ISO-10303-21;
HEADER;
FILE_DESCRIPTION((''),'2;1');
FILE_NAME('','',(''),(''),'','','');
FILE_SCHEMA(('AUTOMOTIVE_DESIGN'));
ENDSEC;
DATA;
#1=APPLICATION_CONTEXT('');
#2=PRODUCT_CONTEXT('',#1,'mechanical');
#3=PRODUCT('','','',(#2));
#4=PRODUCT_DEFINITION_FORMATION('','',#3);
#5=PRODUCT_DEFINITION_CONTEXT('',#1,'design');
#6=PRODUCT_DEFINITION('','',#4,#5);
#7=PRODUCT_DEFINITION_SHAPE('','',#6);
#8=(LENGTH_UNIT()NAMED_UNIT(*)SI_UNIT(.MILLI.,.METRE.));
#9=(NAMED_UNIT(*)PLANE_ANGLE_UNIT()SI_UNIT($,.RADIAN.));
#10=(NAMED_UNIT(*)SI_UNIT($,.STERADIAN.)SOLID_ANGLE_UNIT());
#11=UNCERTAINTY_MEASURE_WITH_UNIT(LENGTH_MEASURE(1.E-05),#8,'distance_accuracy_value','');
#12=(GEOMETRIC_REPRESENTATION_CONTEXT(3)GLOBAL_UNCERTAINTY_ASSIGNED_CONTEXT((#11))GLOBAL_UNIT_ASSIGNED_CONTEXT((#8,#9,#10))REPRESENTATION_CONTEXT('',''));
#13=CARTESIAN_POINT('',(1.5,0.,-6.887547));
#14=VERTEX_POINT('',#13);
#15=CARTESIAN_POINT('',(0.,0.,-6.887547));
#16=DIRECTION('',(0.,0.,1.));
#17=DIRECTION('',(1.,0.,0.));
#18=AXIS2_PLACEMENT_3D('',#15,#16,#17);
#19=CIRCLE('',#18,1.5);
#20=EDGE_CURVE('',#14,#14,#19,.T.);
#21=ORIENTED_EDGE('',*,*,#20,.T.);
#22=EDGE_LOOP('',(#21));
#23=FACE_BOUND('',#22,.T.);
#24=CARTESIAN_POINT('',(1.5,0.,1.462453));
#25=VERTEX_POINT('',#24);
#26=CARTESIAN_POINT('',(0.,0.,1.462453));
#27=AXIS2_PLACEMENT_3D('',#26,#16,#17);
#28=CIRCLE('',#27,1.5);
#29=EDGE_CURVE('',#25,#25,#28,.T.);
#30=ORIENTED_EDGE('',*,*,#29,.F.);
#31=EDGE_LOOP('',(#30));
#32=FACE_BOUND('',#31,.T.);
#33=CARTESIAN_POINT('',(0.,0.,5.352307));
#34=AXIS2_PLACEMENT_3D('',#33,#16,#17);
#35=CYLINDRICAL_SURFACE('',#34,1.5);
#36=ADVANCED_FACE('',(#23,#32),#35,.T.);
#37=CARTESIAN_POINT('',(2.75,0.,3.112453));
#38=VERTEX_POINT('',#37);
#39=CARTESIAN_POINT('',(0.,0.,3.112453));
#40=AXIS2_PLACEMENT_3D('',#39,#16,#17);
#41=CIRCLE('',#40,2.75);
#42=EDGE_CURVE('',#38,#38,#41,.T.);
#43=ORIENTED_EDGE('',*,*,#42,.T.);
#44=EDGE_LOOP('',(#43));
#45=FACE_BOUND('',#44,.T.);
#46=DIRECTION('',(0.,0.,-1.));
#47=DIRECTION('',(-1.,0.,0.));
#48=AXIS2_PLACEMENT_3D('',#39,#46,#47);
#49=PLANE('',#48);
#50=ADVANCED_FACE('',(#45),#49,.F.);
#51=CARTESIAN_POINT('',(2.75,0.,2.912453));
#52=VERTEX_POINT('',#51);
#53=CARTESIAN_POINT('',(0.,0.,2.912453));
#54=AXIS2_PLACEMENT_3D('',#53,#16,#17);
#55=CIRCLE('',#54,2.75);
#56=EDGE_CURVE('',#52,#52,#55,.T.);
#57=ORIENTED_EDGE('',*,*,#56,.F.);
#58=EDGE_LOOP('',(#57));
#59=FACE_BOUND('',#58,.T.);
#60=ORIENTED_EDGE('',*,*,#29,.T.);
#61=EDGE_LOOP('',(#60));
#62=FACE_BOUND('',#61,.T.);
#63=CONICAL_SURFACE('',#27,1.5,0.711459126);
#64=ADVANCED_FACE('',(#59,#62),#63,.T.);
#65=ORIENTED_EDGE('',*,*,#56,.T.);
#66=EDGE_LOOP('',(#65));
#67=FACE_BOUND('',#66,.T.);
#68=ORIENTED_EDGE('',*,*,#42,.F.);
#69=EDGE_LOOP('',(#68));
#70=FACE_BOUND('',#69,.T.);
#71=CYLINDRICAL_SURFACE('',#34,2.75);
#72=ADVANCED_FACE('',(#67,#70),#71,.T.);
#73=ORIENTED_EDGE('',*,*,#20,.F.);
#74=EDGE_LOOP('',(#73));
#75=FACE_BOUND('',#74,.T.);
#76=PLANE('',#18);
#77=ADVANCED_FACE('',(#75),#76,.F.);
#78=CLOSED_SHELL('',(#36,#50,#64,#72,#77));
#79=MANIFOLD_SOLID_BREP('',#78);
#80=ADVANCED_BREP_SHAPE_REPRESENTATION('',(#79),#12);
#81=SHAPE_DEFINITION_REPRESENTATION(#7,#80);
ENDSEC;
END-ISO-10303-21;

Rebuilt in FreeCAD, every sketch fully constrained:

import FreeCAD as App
import Part
import Sketcher
from FreeCAD import Vector
Q = App.Units.Quantity


def add_polygon(sketch, points):
    """Adds a closed chain of lines whose ends are joined by coincident constraints."""
    first, n = sketch.GeometryCount, len(points)
    for a, b in zip(points, points[1:] + points[:1]):
        sketch.addGeometry(Part.LineSegment(App.Vector(*a, 0), App.Vector(*b, 0)), False)
    for i in range(n):
        sketch.addConstraint(Sketcher.Constraint("Coincident", first + i, 2, first + (i + 1) % n, 1))

doc = App.newDocument("Part")
body = doc.addObject("PartDesign::Body", "Body")

# Sketch on YZ plane
sketch1 = doc.addObject("Sketcher::SketchObject", "Sketch")
body.addObject(sketch1)
sketch1.AttachmentSupport = (doc.YZ_Plane, [""])
sketch1.MapMode = "FlatFace"
add_polygon(sketch1, [(1.5, 1.46), (2.75, 2.91), (2.75, 3.11), (0, 3.11), (0, -6.89), (1.5, -6.89)])  # lines 0-5
sketch1.addConstraint([
    Sketcher.Constraint("Vertical", 1),
    Sketcher.Constraint("Horizontal", 2),
    Sketcher.Constraint("Vertical", 3),
    Sketcher.Constraint("Horizontal", 4),
    Sketcher.Constraint("Vertical", 5),
    Sketcher.Constraint("PointOnObject", 2, 2, -2),
    Sketcher.Constraint("DistanceY", 3, 2, 3, 1, Q("10 mm")),
    Sketcher.Constraint("DistanceX", 4, 1, 4, 2, Q("1.5 mm")),
    Sketcher.Constraint("DistanceY", 1, 1, 1, 2, Q("0.2 mm")),
    Sketcher.Constraint("DistanceX", 2, 2, 2, 1, Q("2.75 mm")),
    Sketcher.Constraint("DistanceY", 5, 1, 5, 2, Q("8.35 mm")),
    Sketcher.Constraint("DistanceY", -1, 1, 0, 2, Q("2.912453 mm")),
])
revolution = doc.addObject("PartDesign::Revolution", "Revolution")
body.addObject(revolution)
revolution.Profile = sketch1
revolution.ReferenceAxis = (sketch1, ["V_Axis"])
revolution.Angle = 360

doc.recompute()
